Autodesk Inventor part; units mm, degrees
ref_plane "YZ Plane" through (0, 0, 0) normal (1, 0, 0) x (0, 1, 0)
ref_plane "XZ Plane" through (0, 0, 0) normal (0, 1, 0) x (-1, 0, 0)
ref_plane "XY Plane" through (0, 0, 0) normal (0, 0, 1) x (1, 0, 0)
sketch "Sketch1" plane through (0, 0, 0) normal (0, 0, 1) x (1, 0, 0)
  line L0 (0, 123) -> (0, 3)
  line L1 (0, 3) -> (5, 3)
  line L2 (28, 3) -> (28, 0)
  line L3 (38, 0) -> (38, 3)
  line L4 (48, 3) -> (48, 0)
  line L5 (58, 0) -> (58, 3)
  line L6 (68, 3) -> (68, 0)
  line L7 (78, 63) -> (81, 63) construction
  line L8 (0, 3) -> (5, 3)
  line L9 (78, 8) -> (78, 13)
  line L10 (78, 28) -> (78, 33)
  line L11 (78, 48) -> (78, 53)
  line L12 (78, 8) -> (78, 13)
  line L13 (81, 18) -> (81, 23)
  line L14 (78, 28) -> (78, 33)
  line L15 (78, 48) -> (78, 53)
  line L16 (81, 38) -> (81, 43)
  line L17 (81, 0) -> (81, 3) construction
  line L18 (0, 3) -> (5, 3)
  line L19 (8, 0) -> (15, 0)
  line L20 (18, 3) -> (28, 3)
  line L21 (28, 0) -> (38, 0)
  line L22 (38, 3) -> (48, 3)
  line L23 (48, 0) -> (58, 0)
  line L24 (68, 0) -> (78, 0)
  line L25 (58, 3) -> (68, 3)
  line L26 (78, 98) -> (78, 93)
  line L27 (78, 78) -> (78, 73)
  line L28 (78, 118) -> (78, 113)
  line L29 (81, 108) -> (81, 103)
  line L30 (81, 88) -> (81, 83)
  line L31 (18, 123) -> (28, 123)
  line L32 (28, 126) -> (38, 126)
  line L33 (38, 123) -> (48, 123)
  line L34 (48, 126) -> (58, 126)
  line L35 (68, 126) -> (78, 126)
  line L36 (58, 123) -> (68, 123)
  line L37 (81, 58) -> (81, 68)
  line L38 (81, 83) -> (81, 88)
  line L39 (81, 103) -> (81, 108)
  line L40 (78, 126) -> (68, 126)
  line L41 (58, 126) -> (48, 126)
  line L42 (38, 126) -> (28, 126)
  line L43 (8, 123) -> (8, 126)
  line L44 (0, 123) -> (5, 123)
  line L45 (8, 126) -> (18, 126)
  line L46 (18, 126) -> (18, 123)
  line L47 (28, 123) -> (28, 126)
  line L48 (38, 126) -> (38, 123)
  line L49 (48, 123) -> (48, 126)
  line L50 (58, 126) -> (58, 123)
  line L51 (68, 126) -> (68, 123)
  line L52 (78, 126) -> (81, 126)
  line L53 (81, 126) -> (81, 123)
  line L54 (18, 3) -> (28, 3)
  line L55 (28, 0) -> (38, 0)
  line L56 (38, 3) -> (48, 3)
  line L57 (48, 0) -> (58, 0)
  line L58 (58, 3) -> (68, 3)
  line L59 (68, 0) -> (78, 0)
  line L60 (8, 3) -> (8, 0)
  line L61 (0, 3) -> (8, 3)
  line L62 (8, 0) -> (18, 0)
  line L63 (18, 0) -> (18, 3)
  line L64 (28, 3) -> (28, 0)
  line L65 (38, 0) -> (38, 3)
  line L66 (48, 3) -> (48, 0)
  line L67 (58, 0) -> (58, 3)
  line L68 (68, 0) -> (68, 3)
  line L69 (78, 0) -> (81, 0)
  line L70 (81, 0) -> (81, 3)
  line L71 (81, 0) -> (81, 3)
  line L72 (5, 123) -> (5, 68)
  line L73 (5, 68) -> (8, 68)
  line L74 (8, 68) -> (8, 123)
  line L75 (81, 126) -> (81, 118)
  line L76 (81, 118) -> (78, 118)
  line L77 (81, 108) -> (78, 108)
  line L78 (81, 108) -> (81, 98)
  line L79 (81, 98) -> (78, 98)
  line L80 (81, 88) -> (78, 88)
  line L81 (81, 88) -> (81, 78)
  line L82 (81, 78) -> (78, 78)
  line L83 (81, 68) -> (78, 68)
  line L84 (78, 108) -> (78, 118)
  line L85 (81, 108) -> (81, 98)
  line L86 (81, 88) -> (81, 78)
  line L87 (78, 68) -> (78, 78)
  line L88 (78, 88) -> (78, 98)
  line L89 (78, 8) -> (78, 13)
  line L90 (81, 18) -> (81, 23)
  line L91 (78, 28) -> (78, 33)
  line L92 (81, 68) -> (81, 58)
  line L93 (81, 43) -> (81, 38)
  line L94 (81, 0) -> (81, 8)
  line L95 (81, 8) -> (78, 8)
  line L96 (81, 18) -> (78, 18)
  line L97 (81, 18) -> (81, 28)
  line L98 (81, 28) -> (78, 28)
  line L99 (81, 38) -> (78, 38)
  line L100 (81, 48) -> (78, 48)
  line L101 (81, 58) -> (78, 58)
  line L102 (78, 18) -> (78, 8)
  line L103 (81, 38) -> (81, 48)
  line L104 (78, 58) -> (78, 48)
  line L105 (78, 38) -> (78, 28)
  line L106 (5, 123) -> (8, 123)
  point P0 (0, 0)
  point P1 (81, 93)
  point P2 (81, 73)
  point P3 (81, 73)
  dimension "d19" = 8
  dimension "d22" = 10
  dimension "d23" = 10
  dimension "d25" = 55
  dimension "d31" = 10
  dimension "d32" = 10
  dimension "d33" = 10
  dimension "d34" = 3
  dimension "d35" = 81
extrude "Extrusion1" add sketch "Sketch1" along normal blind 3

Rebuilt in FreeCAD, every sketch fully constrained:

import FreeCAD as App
import Part
import Sketcher
from FreeCAD import Vector


def add_polygon(sketch, points):
    """Adds a closed chain of lines whose ends are joined by coincident constraints."""
    first, n = sketch.GeometryCount, len(points)
    for a, b in zip(points, points[1:] + points[:1]):
        sketch.addGeometry(Part.LineSegment(App.Vector(*a, 0), App.Vector(*b, 0)), False)
    for i in range(n):
        sketch.addConstraint(Sketcher.Constraint("Coincident", first + i, 2, first + (i + 1) % n, 1))

doc = App.newDocument("Part")
body = doc.addObject("PartDesign::Body", "Body")

sketch1 = body.newObject("Sketcher::SketchObject", "Sketch")
sketch1.AttachmentSupport = (doc.getObject("XY_Plane"), [""])
sketch1.MapMode = "FlatFace"
add_polygon(sketch1, [(0, 123), (0, 3), (8, 3), (8, 0), (18, 0), (18, 3), (28, 3), (28, 0), (38, 0), (38, 3), (48, 3), (48, 0), (58, 0), (58, 3), (68, 3), (68, 0), (81, 0), (81, 8), (78, 8), (78, 18), (81, 18), (81, 28), (78, 28), (78, 38), (81, 38), (81, 48), (78, 48), (78, 58), (81, 58), (81, 68), (78, 68), (78, 78), (81, 78), (81, 88), (78, 88), (78, 98), (81, 98), (81, 108), (78, 108), (78, 118), (81, 118), (81, 126), (68, 126), (68, 123), (58, 123), (58, 126), (48, 126), (48, 123), (38, 123), (38, 126), (28, 126), (28, 123), (18, 123), (18, 126), (8, 126), (8, 123)])
sketch1.addConstraint(Sketcher.Constraint("Vertical", 0))
sketch1.addConstraint(Sketcher.Constraint("Horizontal", 1))
sketch1.addConstraint(Sketcher.Constraint("Vertical", 2))
sketch1.addConstraint(Sketcher.Constraint("Horizontal", 3))
sketch1.addConstraint(Sketcher.Constraint("Vertical", 4))
sketch1.addConstraint(Sketcher.Constraint("Horizontal", 5))
sketch1.addConstraint(Sketcher.Constraint("Vertical", 6))
sketch1.addConstraint(Sketcher.Constraint("Horizontal", 7))
sketch1.addConstraint(Sketcher.Constraint("Vertical", 8))
sketch1.addConstraint(Sketcher.Constraint("Horizontal", 9))
sketch1.addConstraint(Sketcher.Constraint("Vertical", 10))
sketch1.addConstraint(Sketcher.Constraint("Horizontal", 11))
sketch1.addConstraint(Sketcher.Constraint("Vertical", 12))
sketch1.addConstraint(Sketcher.Constraint("Horizontal", 13))
sketch1.addConstraint(Sketcher.Constraint("Vertical", 14))
sketch1.addConstraint(Sketcher.Constraint("Horizontal", 15))
sketch1.addConstraint(Sketcher.Constraint("Vertical", 16))
sketch1.addConstraint(Sketcher.Constraint("Horizontal", 17))
sketch1.addConstraint(Sketcher.Constraint("Vertical", 18))
sketch1.addConstraint(Sketcher.Constraint("Horizontal", 19))
sketch1.addConstraint(Sketcher.Constraint("Vertical", 20))
sketch1.addConstraint(Sketcher.Constraint("Horizontal", 21))
sketch1.addConstraint(Sketcher.Constraint("Vertical", 22))
sketch1.addConstraint(Sketcher.Constraint("Horizontal", 23))
sketch1.addConstraint(Sketcher.Constraint("Vertical", 24))
sketch1.addConstraint(Sketcher.Constraint("Horizontal", 25))
sketch1.addConstraint(Sketcher.Constraint("Vertical", 26))
sketch1.addConstraint(Sketcher.Constraint("Horizontal", 27))
sketch1.addConstraint(Sketcher.Constraint("Vertical", 28))
sketch1.addConstraint(Sketcher.Constraint("Horizontal", 29))
sketch1.addConstraint(Sketcher.Constraint("Vertical", 30))
sketch1.addConstraint(Sketcher.Constraint("Horizontal", 31))
sketch1.addConstraint(Sketcher.Constraint("Vertical", 32))
sketch1.addConstraint(Sketcher.Constraint("Horizontal", 33))
sketch1.addConstraint(Sketcher.Constraint("Vertical", 34))
sketch1.addConstraint(Sketcher.Constraint("Horizontal", 35))
sketch1.addConstraint(Sketcher.Constraint("Vertical", 36))
sketch1.addConstraint(Sketcher.Constraint("Horizontal", 37))
sketch1.addConstraint(Sketcher.Constraint("Vertical", 38))
sketch1.addConstraint(Sketcher.Constraint("Horizontal", 39))
sketch1.addConstraint(Sketcher.Constraint("Vertical", 40))
sketch1.addConstraint(Sketcher.Constraint("Horizontal", 41))
sketch1.addConstraint(Sketcher.Constraint("Vertical", 42))
sketch1.addConstraint(Sketcher.Constraint("Horizontal", 43))
sketch1.addConstraint(Sketcher.Constraint("Vertical", 44))
sketch1.addConstraint(Sketcher.Constraint("Horizontal", 45))
sketch1.addConstraint(Sketcher.Constraint("Vertical", 46))
sketch1.addConstraint(Sketcher.Constraint("Horizontal", 47))
sketch1.addConstraint(Sketcher.Constraint("Vertical", 48))
sketch1.addConstraint(Sketcher.Constraint("Horizontal", 49))
sketch1.addConstraint(Sketcher.Constraint("Vertical", 50))
sketch1.addConstraint(Sketcher.Constraint("Horizontal", 51))
sketch1.addConstraint(Sketcher.Constraint("Vertical", 52))
sketch1.addConstraint(Sketcher.Constraint("Horizontal", 53))
sketch1.addConstraint(Sketcher.Constraint("Vertical", 54))
sketch1.addConstraint(Sketcher.Constraint("Horizontal", 55))
sketch1.addConstraint(Sketcher.Constraint("PointOnObject", 0, 2, -2))
sketch1.addConstraint(Sketcher.Constraint("PointOnObject", 2, 2, -1))
sketch1.addConstraint(Sketcher.Constraint("PointOnObject", 6, 2, -1))
sketch1.addConstraint(Sketcher.Constraint("PointOnObject", 10, 2, -1))
sketch1.addConstraint(Sketcher.Constraint("PointOnObject", 14, 2, -1))
sketch1.addConstraint(Sketcher.Constraint("Horizontal", 1, 2, 4, 2))
sketch1.addConstraint(Sketcher.Constraint("Horizontal", 5, 2, 8, 2))
sketch1.addConstraint(Sketcher.Constraint("Horizontal", 9, 2, 12, 2))
sketch1.addConstraint(Sketcher.Constraint("Horizontal", 41, 2, 44, 2))
sketch1.addConstraint(Sketcher.Constraint("Horizontal", 43, 2, 46, 2))
sketch1.addConstraint(Sketcher.Constraint("Horizontal", 45, 2, 48, 2))
sketch1.addConstraint(Sketcher.Constraint("Horizontal", 47, 2, 50, 2))
sketch1.addConstraint(Sketcher.Constraint("Horizontal", 49, 2, 52, 2))
sketch1.addConstraint(Sketcher.Constraint("Horizontal", 51, 2, 54, 2))
sketch1.addConstraint(Sketcher.Constraint("Vertical", 16, 2, 19, 2))
sketch1.addConstraint(Sketcher.Constraint("Vertical", 18, 2, 21, 2))
sketch1.addConstraint(Sketcher.Constraint("Vertical", 20, 2, 23, 2))
sketch1.addConstraint(Sketcher.Constraint("Vertical", 22, 2, 25, 2))
sketch1.addConstraint(Sketcher.Constraint("Vertical", 24, 2, 27, 2))
sketch1.addConstraint(Sketcher.Constraint("Vertical", 26, 2, 29, 2))
sketch1.addConstraint(Sketcher.Constraint("Vertical", 28, 2, 31, 2))
sketch1.addConstraint(Sketcher.Constraint("Vertical", 30, 2, 33, 2))
sketch1.addConstraint(Sketcher.Constraint("Vertical", 32, 2, 35, 2))
sketch1.addConstraint(Sketcher.Constraint("Vertical", 34, 2, 37, 2))
sketch1.addConstraint(Sketcher.Constraint("Vertical", 36, 2, 39, 2))
sketch1.addConstraint(Sketcher.Constraint("Vertical", 14, 2, 41, 2))
sketch1.addConstraint(Sketcher.Constraint("Vertical", 12, 2, 43, 2))
sketch1.addConstraint(Sketcher.Constraint("Vertical", 10, 2, 45, 2))
sketch1.addConstraint(Sketcher.Constraint("Vertical", 8, 2, 47, 2))
sketch1.addConstraint(Sketcher.Constraint("Vertical", 6, 2, 49, 2))
sketch1.addConstraint(Sketcher.Constraint("Vertical", 4, 2, 51, 2))
sketch1.addConstraint(Sketcher.Constraint("Vertical", 2, 2, 53, 2))
sketch1.addConstraint(Sketcher.Constraint("Equal", 3, 5))
sketch1.addConstraint(Sketcher.Constraint("Equal", 5, 7))
sketch1.addConstraint(Sketcher.Constraint("Equal", 7, 9))
sketch1.addConstraint(Sketcher.Constraint("Equal", 9, 11))
sketch1.addConstraint(Sketcher.Constraint("Equal", 11, 13))
sketch1.addConstraint(Sketcher.Constraint("Equal", 39, 2))
sketch1.addConstraint(Sketcher.Constraint("Equal", 55, 16))
sketch1.addConstraint(Sketcher.Constraint("Equal", 53, 18))
sketch1.addConstraint(Sketcher.Constraint("Equal", 18, 20))
sketch1.addConstraint(Sketcher.Constraint("Equal", 20, 22))
sketch1.addConstraint(Sketcher.Constraint("Equal", 22, 24))
sketch1.addConstraint(Sketcher.Constraint("Equal", 24, 26))
sketch1.addConstraint(Sketcher.Constraint("Equal", 26, 28))
sketch1.addConstraint(Sketcher.Constraint("Equal", 28, 30))
sketch1.addConstraint(Sketcher.Constraint("Equal", 30, 32))
sketch1.addConstraint(Sketcher.Constraint("Equal", 32, 34))
sketch1.addConstraint(Sketcher.Constraint("Equal", 34, 36))
sketch1.addConstraint(Sketcher.Constraint("Equal", 36, 38))
sketch1.addConstraint(Sketcher.Constraint("Equal", 16, 40))
sketch1.addConstraint(Sketcher.Constraint("Equal", 14, 42))
sketch1.addConstraint(Sketcher.Constraint("DistanceX", 1, 1, 1, 2, 8.0))
sketch1.addConstraint(Sketcher.Constraint("DistanceX", 3, 1, 3, 2, 10.0))
sketch1.addConstraint(Sketcher.Constraint("DistanceX", 17, 2, 17, 1, 3.0))
sketch1.addConstraint(Sketcher.Constraint("DistanceX", -1, 1, 15, 2, 81.0))
pad1 = body.newObject("PartDesign::Pad", "Pad")
pad1.Profile = sketch1
pad1.Length = 3

doc.recompute()
